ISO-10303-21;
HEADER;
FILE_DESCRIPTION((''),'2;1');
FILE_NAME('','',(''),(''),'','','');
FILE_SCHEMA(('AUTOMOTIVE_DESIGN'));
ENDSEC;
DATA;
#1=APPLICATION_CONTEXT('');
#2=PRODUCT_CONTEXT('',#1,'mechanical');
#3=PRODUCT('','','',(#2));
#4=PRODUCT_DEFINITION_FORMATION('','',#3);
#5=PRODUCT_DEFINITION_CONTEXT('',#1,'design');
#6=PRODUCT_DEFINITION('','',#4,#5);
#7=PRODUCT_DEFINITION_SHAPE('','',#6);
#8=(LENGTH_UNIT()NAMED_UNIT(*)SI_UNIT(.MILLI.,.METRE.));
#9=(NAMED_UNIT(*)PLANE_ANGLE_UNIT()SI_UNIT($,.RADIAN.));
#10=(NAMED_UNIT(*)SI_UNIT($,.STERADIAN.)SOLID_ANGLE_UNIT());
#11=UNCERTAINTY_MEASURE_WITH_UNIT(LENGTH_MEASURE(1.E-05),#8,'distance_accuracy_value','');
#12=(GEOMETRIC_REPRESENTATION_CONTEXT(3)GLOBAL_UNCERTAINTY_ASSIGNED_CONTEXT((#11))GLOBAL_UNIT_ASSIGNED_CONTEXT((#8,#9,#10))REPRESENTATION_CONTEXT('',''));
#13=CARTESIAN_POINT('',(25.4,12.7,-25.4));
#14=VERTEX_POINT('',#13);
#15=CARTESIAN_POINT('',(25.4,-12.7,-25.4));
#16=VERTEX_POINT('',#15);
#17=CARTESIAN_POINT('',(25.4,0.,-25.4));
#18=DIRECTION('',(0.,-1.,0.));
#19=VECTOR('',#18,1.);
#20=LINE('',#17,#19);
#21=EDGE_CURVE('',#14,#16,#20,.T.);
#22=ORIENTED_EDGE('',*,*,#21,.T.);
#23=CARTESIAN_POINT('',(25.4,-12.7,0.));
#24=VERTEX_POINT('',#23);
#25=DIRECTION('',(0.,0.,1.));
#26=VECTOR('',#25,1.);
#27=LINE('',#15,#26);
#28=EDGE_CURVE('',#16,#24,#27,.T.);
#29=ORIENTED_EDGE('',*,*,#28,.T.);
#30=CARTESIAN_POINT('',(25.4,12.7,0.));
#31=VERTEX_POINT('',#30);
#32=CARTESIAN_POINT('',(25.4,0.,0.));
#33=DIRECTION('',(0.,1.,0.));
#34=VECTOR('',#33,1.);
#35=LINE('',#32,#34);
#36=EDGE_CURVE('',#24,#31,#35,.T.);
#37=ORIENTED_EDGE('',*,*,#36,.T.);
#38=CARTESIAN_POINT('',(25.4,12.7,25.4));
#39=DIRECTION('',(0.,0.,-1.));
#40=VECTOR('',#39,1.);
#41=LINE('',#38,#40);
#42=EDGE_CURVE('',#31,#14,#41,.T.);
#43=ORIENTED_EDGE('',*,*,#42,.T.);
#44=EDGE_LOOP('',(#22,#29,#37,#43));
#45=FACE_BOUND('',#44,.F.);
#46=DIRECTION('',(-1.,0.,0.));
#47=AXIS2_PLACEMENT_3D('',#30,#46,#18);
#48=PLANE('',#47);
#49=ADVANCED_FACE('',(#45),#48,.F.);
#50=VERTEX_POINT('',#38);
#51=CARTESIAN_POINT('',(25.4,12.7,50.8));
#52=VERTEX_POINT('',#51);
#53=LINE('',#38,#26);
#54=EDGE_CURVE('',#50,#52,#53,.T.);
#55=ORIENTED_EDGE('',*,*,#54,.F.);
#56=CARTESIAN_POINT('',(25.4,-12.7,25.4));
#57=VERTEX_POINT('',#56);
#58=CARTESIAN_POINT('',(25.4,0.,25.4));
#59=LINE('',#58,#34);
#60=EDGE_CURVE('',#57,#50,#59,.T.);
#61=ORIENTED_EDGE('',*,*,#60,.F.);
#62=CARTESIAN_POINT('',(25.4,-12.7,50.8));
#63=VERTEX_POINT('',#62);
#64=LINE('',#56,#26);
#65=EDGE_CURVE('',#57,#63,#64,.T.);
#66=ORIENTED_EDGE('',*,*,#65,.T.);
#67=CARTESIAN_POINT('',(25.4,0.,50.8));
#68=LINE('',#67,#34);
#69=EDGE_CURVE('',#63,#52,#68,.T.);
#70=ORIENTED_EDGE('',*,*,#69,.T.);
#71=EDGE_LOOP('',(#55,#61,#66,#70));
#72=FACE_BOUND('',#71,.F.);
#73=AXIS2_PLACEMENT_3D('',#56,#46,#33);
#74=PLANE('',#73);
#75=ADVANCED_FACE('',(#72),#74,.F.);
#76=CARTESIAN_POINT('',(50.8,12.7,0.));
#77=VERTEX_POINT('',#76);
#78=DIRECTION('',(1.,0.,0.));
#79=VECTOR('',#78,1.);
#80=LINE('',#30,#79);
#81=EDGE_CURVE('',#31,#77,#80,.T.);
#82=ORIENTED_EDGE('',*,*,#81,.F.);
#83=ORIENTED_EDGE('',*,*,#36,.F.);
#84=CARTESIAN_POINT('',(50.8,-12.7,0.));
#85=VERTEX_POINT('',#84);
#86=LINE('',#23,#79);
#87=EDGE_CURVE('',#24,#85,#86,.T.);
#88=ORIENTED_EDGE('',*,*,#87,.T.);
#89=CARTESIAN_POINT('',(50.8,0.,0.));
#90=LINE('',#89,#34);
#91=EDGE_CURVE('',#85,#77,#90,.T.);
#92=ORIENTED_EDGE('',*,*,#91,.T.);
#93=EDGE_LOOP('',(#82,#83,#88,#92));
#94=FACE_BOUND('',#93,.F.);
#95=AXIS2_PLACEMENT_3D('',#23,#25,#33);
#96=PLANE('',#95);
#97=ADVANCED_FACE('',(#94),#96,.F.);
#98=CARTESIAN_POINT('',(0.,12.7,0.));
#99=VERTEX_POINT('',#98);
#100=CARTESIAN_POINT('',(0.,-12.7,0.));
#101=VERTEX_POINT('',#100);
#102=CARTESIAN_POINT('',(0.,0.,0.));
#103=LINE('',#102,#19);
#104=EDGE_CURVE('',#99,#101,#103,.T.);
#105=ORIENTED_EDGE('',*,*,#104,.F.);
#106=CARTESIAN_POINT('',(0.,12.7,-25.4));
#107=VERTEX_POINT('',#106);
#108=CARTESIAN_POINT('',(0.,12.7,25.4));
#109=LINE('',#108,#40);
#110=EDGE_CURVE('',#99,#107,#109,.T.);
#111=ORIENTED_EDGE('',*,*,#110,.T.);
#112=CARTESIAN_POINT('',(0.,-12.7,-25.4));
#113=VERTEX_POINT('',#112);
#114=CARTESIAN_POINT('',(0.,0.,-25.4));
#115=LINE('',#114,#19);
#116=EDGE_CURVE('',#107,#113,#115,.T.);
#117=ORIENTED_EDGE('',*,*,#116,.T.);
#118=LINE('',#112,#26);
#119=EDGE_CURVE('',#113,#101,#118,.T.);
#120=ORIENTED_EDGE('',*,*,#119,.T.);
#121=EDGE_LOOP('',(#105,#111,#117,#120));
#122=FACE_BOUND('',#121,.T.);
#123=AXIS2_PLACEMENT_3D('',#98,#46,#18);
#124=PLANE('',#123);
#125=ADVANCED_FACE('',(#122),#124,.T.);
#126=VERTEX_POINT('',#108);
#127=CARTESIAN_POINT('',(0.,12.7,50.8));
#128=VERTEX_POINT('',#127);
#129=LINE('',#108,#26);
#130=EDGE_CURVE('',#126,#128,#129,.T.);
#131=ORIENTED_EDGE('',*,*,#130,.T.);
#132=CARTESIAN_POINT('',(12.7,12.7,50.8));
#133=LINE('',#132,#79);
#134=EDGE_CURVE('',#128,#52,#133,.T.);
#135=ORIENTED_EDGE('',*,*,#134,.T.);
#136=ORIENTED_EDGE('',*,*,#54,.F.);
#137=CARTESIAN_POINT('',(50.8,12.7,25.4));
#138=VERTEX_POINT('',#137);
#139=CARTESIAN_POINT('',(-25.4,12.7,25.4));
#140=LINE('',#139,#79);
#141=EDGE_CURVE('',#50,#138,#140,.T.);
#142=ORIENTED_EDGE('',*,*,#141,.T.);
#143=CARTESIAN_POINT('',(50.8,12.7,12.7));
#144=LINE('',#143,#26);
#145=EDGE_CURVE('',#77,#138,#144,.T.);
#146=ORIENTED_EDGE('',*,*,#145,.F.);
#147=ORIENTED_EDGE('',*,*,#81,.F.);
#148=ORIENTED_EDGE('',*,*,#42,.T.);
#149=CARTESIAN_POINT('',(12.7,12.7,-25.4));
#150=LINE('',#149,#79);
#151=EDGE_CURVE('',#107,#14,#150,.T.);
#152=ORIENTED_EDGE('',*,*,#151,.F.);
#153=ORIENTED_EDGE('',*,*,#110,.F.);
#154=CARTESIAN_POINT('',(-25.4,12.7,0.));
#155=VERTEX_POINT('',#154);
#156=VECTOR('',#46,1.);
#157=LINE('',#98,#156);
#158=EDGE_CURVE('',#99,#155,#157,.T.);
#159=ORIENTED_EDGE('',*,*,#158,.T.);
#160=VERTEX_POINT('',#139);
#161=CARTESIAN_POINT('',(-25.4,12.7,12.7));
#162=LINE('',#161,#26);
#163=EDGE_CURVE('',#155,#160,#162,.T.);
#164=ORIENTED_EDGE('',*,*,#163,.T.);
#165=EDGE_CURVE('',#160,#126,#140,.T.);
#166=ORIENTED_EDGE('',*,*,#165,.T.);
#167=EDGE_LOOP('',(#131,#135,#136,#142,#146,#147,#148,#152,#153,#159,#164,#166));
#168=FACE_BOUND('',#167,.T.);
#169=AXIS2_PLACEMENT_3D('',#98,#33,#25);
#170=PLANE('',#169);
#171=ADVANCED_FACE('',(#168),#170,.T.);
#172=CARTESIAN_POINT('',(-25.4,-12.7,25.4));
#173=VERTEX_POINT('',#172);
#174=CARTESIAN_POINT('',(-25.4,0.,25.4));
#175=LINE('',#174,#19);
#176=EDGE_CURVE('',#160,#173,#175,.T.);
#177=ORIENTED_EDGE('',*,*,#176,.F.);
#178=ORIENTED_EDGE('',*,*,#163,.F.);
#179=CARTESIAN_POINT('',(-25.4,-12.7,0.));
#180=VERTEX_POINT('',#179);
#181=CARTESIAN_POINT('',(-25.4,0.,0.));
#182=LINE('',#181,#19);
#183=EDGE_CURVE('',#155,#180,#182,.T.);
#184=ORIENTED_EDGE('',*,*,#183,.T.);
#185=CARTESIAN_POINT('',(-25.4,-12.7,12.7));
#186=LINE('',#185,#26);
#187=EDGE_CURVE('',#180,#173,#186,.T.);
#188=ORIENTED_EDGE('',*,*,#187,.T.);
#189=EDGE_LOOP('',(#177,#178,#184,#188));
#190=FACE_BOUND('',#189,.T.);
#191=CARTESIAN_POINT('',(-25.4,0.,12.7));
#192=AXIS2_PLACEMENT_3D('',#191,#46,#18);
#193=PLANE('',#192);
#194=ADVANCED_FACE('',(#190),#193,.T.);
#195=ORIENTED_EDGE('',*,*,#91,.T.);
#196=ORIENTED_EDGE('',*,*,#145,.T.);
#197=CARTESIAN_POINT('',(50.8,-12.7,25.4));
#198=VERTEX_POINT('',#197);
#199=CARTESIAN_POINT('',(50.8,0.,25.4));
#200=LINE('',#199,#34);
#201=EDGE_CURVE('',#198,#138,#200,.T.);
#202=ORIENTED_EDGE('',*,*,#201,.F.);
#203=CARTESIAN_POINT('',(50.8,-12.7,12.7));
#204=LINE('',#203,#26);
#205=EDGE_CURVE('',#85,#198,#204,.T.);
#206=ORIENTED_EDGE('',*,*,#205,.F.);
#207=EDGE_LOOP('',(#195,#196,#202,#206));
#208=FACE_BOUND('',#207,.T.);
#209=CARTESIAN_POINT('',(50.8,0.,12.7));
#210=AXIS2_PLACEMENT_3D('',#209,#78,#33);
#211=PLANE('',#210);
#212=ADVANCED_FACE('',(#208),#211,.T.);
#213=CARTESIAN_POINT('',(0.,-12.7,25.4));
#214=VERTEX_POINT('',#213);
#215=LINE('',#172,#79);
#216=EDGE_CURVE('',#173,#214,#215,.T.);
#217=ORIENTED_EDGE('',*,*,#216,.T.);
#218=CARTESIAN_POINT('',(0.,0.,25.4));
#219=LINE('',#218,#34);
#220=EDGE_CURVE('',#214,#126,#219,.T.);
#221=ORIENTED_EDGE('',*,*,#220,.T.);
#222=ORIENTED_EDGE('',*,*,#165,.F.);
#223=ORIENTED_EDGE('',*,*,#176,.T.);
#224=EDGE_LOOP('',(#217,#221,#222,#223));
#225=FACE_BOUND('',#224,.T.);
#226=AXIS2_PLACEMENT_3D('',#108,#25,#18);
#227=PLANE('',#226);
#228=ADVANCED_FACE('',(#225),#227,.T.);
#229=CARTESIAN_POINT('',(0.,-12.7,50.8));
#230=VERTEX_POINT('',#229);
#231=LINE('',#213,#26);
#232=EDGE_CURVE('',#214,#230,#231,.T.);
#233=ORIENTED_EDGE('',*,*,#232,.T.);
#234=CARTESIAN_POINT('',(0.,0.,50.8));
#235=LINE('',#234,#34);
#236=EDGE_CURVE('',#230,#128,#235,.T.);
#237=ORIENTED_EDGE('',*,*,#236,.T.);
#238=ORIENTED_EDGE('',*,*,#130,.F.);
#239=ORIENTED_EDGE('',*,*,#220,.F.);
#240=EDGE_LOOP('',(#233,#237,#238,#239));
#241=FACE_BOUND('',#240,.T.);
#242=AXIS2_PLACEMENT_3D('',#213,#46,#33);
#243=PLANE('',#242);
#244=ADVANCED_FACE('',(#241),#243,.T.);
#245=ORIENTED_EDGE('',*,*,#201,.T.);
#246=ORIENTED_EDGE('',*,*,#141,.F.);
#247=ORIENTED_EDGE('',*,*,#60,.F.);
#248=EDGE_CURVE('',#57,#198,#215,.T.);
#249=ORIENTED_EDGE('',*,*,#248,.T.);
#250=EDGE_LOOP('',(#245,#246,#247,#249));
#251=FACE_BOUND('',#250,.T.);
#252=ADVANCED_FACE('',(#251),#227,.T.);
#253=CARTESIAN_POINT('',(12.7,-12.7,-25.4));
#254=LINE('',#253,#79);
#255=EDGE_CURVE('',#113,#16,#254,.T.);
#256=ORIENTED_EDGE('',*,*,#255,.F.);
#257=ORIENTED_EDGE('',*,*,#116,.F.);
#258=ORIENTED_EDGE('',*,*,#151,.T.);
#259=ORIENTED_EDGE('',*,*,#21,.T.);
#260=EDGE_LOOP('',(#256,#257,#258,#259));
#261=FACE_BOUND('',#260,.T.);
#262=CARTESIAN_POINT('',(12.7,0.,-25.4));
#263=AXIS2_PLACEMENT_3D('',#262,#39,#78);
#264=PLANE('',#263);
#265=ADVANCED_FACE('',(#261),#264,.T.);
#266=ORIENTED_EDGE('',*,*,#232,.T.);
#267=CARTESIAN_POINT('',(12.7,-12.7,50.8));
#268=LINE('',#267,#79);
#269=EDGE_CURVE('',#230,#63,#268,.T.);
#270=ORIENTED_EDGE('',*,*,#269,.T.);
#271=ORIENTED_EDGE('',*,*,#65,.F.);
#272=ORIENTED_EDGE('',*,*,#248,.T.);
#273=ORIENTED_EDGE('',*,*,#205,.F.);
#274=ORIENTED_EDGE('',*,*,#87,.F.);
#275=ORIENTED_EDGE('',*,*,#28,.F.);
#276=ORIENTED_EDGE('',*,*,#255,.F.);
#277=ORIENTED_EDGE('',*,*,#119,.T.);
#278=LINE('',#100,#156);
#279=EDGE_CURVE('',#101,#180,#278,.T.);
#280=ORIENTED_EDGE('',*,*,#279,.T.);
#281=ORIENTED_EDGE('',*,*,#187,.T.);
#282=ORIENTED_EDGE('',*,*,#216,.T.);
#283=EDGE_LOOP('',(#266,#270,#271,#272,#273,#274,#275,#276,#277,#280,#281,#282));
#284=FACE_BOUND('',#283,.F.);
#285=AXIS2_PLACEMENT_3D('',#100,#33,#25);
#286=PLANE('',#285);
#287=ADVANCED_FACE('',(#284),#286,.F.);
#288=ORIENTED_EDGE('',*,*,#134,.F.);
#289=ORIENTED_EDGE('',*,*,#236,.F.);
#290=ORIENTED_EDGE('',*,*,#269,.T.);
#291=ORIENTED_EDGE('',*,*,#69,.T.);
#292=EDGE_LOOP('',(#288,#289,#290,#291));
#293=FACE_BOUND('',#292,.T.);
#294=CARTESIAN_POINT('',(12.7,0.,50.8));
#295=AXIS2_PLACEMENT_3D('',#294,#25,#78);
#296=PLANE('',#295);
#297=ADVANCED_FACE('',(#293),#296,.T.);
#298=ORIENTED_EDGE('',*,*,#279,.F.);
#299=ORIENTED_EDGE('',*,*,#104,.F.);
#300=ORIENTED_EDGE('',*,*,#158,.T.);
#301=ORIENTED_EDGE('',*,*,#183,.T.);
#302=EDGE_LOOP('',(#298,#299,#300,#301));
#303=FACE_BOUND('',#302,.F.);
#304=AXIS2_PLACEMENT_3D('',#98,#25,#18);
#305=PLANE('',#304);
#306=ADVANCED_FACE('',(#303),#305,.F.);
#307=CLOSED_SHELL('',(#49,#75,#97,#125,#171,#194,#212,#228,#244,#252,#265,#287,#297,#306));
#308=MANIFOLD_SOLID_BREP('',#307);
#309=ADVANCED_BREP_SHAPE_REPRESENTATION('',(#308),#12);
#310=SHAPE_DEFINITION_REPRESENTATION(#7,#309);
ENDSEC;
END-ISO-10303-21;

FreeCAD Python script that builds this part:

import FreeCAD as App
import Part
import Sketcher
Q = App.Units.Quantity

doc = App.newDocument("Part")
body = doc.addObject("PartDesign::Body", "Body")

sketch1 = body.newObject("Sketcher::SketchObject", "Sketch")
sketch1.AttachmentSupport = (doc.getObject("XZ_Plane"), [""])
sketch1.MapMode = "FlatFace"
sketch1.addGeometry([
    Part.LineSegment(App.Vector(0, 25, 0), App.Vector(0, 0, 0)),
    Part.LineSegment(App.Vector(0, 0, 0), App.Vector(25, 0, 0)),
    Part.LineSegment(App.Vector(25, 0, 0), App.Vector(25, 25, 0)),
    Part.LineSegment(App.Vector(25, 25, 0), App.Vector(0, 25, 0)),
], False)
sketch1.addConstraint([
    Sketcher.Constraint("Coincident", 0, 2, 1, 1),
    Sketcher.Constraint("Coincident", 1, 2, 2, 1),
    Sketcher.Constraint("Coincident", 2, 2, 3, 1),
    Sketcher.Constraint("Coincident", 3, 2, 0, 1),
    Sketcher.Constraint("Vertical", 0),
    Sketcher.Constraint("Horizontal", 1),
    Sketcher.Constraint("Vertical", 2),
    Sketcher.Constraint("Horizontal", 3),
    Sketcher.Constraint("Coincident", 0, 2, -1, 1),
    Sketcher.Constraint("Equal", 3, 0),
    Sketcher.Constraint("DistanceX", 1, 1, 1, 2, Q("1 in")),
])
pad1 = body.newObject("PartDesign::Pad", "Pad")
pad1.Profile = sketch1
pad1.Length = Q("1 in")
pad1.Midplane = True

sketch2 = body.newObject("Sketcher::SketchObject", "Sketch001")
sketch2.AttachmentSupport = (doc.getObject("XY_Plane"), [""])
sketch2.MapMode = "FlatFace"
sketch2.addGeometry([
    Part.LineSegment(App.Vector(0, -13, 0), App.Vector(0, 13, 0)),
    Part.LineSegment(App.Vector(0, 13, 0), App.Vector(25, 13, 0)),
    Part.LineSegment(App.Vector(25, 13, 0), App.Vector(25, -13, 0)),
    Part.LineSegment(App.Vector(25, -13, 0), App.Vector(0, -13, 0)),
], False)
sketch2.addConstraint([
    Sketcher.Constraint("Coincident", 0, 2, 1, 1),
    Sketcher.Constraint("Coincident", 1, 2, 2, 1),
    Sketcher.Constraint("Coincident", 2, 2, 3, 1),
    Sketcher.Constraint("Coincident", 3, 2, 0, 1),
    Sketcher.Constraint("Vertical", 0),
    Sketcher.Constraint("Horizontal", 1),
    Sketcher.Constraint("Vertical", 2),
    Sketcher.Constraint("Horizontal", 3),
    Sketcher.Constraint("Symmetric", 0, 2, 3, 2, -1, 1),
    Sketcher.Constraint("Equal", 3, 0),
    Sketcher.Constraint("DistanceX", 1, 1, 1, 2, Q("1 in")),
])
pad2 = body.newObject("PartDesign::Pad", "Pad001")
pad2.Profile = sketch2
pad2.Length = Q("1 in")
pad2.Reversed = True

sketch3 = body.newObject("Sketcher::SketchObject", "Sketch002")
sketch3.AttachmentSupport = (doc.getObject("YZ_Plane"), [""])
sketch3.MapMode = "FlatFace"
sketch3.AttachmentOffset = App.Placement(App.Vector(0, 0, 1 * 25.4), App.Rotation())
sketch3.addGeometry([
    Part.LineSegment(App.Vector(-13, 25, 0), App.Vector(-13, 0, 0)),
    Part.LineSegment(App.Vector(-13, 0, 0), App.Vector(13, 0, 0)),
    Part.LineSegment(App.Vector(13, 0, 0), App.Vector(13, 25, 0)),
    Part.LineSegment(App.Vector(13, 25, 0), App.Vector(-13, 25, 0)),
], False)
sketch3.addConstraint([
    Sketcher.Constraint("Coincident", 0, 2, 1, 1),
    Sketcher.Constraint("Coincident", 1, 2, 2, 1),
    Sketcher.Constraint("Coincident", 2, 2, 3, 1),
    Sketcher.Constraint("Coincident", 3, 2, 0, 1),
    Sketcher.Constraint("Vertical", 0),
    Sketcher.Constraint("Horizontal", 1),
    Sketcher.Constraint("Vertical", 2),
    Sketcher.Constraint("Horizontal", 3),
    Sketcher.Constraint("Symmetric", 0, 2, 1, 2, -1, 1),
    Sketcher.Constraint("Equal", 3, 0),
    Sketcher.Constraint("DistanceX", 1, 1, 1, 2, Q("1 in")),
])
pad3 = body.newObject("PartDesign::Pad", "Pad002")
pad3.Profile = sketch3
pad3.Length = Q("1 in")

sketch4 = body.newObject("Sketcher::SketchObject", "Sketch003")
sketch4.AttachmentSupport = (doc.getObject("YZ_Plane"), [""])
sketch4.MapMode = "FlatFace"
sketch4.addGeometry([
    Part.LineSegment(App.Vector(13, 25, 0), App.Vector(13, 0, 0)),
    Part.LineSegment(App.Vector(13, 0, 0), App.Vector(-13, 0, 0)),
    Part.LineSegment(App.Vector(-13, 0, 0), App.Vector(-13, 25, 0)),
    Part.LineSegment(App.Vector(-13, 25, 0), App.Vector(13, 25, 0)),
], False)
sketch4.addConstraint([
    Sketcher.Constraint("Coincident", 0, 2, 1, 1),
    Sketcher.Constraint("Coincident", 1, 2, 2, 1),
    Sketcher.Constraint("Coincident", 2, 2, 3, 1),
    Sketcher.Constraint("Coincident", 3, 2, 0, 1),
    Sketcher.Constraint("Vertical", 0),
    Sketcher.Constraint("Horizontal", 1),
    Sketcher.Constraint("Vertical", 2),
    Sketcher.Constraint("Horizontal", 3),
    Sketcher.Constraint("Symmetric", 0, 2, 1, 2, -1, 1),
    Sketcher.Constraint("Equal", 3, 0),
    Sketcher.Constraint("DistanceX", 1, 2, 1, 1, Q("1 in")),
])
pad4 = body.newObject("PartDesign::Pad", "Pad003")
pad4.Profile = sketch4
pad4.Length = Q("1 in")
pad4.Reversed = True

sketch5 = body.newObject("Sketcher::SketchObject", "Sketch004")
sketch5.AttachmentSupport = (doc.getObject("XY_Plane"), [""])
sketch5.MapMode = "FlatFace"
sketch5.AttachmentOffset = App.Placement(App.Vector(0, 0, 1 * 25.4), App.Rotation())
sketch5.addGeometry([
    Part.LineSegment(App.Vector(0, 13, 0), App.Vector(0, -13, 0)),
    Part.LineSegment(App.Vector(0, -13, 0), App.Vector(25, -13, 0)),
    Part.LineSegment(App.Vector(25, -13, 0), App.Vector(25, 13, 0)),
    Part.LineSegment(App.Vector(25, 13, 0), App.Vector(0, 13, 0)),
], False)
sketch5.addConstraint([
    Sketcher.Constraint("Coincident", 0, 2, 1, 1),
    Sketcher.Constraint("Coincident", 1, 2, 2, 1),
    Sketcher.Constraint("Coincident", 2, 2, 3, 1),
    Sketcher.Constraint("Coincident", 3, 2, 0, 1),
    Sketcher.Constraint("Vertical", 0),
    Sketcher.Constraint("Horizontal", 1),
    Sketcher.Constraint("Vertical", 2),
    Sketcher.Constraint("Horizontal", 3),
    Sketcher.Constraint("Symmetric", 0, 2, 3, 2, -1, 1),
    Sketcher.Constraint("Equal", 3, 0),
    Sketcher.Constraint("DistanceX", 1, 1, 1, 2, Q("1 in")),
])
pad5 = body.newObject("PartDesign::Pad", "Pad004")
pad5.Profile = sketch5
pad5.Length = Q("1 in")

doc.recompute()
